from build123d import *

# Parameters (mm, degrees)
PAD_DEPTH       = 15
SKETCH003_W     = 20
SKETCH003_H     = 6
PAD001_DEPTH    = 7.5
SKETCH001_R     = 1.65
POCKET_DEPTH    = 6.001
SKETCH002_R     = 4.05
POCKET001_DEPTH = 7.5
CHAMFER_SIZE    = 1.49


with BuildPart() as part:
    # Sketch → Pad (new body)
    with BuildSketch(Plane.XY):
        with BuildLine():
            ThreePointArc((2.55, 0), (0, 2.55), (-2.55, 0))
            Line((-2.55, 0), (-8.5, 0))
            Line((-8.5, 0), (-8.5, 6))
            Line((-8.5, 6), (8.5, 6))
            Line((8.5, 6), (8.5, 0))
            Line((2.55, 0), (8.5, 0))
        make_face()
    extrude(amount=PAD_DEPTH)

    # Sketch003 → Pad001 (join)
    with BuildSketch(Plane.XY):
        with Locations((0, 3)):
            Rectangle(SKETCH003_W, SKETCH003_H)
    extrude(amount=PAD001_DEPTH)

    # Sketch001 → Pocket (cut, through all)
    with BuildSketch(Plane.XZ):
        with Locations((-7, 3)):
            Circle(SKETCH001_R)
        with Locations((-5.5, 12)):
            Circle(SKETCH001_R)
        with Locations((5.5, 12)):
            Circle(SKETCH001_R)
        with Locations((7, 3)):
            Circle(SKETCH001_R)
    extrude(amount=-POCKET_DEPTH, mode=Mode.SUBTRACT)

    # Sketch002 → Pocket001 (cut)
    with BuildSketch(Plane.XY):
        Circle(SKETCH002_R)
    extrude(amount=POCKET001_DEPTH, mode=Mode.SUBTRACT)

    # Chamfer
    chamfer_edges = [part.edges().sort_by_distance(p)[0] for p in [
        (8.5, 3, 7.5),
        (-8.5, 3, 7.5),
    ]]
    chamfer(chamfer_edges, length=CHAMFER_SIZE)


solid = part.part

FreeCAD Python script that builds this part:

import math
import FreeCAD as App
import Part
import Sketcher


def edges_at(feature, points):
    """Names of the edges that pass closest to the given points."""
    edges = feature.Shape.Edges
    near = lambda p: min(range(len(edges)), key=lambda i: edges[i].distToShape(Part.Vertex(*p))[0])
    return sorted({f"Edge{near(p) + 1}" for p in points})


def add_polygon(sketch, points):
    """Adds a closed chain of lines whose ends are joined by coincident constraints."""
    first, n = sketch.GeometryCount, len(points)
    for a, b in zip(points, points[1:] + points[:1]):
        sketch.addGeometry(Part.LineSegment(App.Vector(*a, 0), App.Vector(*b, 0)), False)
    for i in range(n):
        sketch.addConstraint(Sketcher.Constraint("Coincident", first + i, 2, first + (i + 1) % n, 1))

doc = App.newDocument("Part")
body = doc.addObject("PartDesign::Body", "Body")

# Sketch on XY plane
sketch1 = doc.addObject("Sketcher::SketchObject", "Sketch")
body.addObject(sketch1)
sketch1.AttachmentSupport = (doc.XY_Plane, [""])
sketch1.MapMode = "FlatFace"
sketch1.addGeometry(Part.ArcOfCircle(Part.Circle(App.Vector(0, 0, 0), App.Vector(0, 0, 1), 2.55), math.radians(0), math.radians(180)), False)
sketch1.addGeometry(Part.LineSegment(App.Vector(2.55, 0, 0), App.Vector(8.5, 0, 0)), False)
sketch1.addGeometry(Part.LineSegment(App.Vector(8.5, 0, 0), App.Vector(8.5, 6, 0)), False)
sketch1.addGeometry(Part.LineSegment(App.Vector(8.5, 6, 0), App.Vector(-8.5, 6, 0)), False)
sketch1.addGeometry(Part.LineSegment(App.Vector(-8.5, 6, 0), App.Vector(-8.5, 0, 0)), False)
sketch1.addGeometry(Part.LineSegment(App.Vector(-8.5, 0, 0), App.Vector(-2.55, 0, 0)), False)
sketch1.addConstraint(Sketcher.Constraint("Coincident", 0, 1, 1, 1))
sketch1.addConstraint(Sketcher.Constraint("Coincident", 1, 2, 2, 1))
sketch1.addConstraint(Sketcher.Constraint("Coincident", 2, 2, 3, 1))
sketch1.addConstraint(Sketcher.Constraint("Coincident", 3, 2, 4, 1))
sketch1.addConstraint(Sketcher.Constraint("Coincident", 4, 2, 5, 1))
sketch1.addConstraint(Sketcher.Constraint("Coincident", 5, 2, 0, 2))
sketch1.addConstraint(Sketcher.Constraint("Horizontal", 1))
sketch1.addConstraint(Sketcher.Constraint("Vertical", 2))
sketch1.addConstraint(Sketcher.Constraint("Horizontal", 3))
sketch1.addConstraint(Sketcher.Constraint("Vertical", 4))
sketch1.addConstraint(Sketcher.Constraint("Horizontal", 5))
sketch1.addConstraint(Sketcher.Constraint("Coincident", 0, 3, -1, 1))
sketch1.addConstraint(Sketcher.Constraint("Symmetric", 1, 2, 4, 2, -1, 1))
sketch1.addConstraint(Sketcher.Constraint("PointOnObject", 0, 1, -1))
sketch1.addConstraint(Sketcher.Constraint("DistanceX", 3, 2, 3, 1, 17.0))
sketch1.addConstraint(Sketcher.Constraint("DistanceY", 2, 1, 2, 2, 6.0))
sketch1.addConstraint(Sketcher.Constraint("Radius", 0, 2.55))
pad1 = doc.addObject("PartDesign::Pad", "Pad")
body.addObject(pad1)
pad1.Profile = sketch1
pad1.Length = 15

# Sketch on XY plane
sketch2 = doc.addObject("Sketcher::SketchObject", "Sketch001")
body.addObject(sketch2)
sketch2.AttachmentSupport = (doc.XY_Plane, [""])
sketch2.MapMode = "FlatFace"
add_polygon(sketch2, [(-10, 6), (-10, 0), (10, 0), (10, 6)])  # lines 0-3
sketch2.addConstraint(Sketcher.Constraint("Vertical", 0))
sketch2.addConstraint(Sketcher.Constraint("Horizontal", 1))
sketch2.addConstraint(Sketcher.Constraint("Vertical", 2))
sketch2.addConstraint(Sketcher.Constraint("Horizontal", 3))
sketch2.addConstraint(Sketcher.Constraint("Symmetric", 0, 2, 1, 2, -1, 1))
sketch2.addConstraint(Sketcher.Constraint("DistanceX", 1, 1, 1, 2, 20.0))
sketch2.addConstraint(Sketcher.Constraint("DistanceY", 0, 2, 0, 1, 6.0))
pad2 = doc.addObject("PartDesign::Pad", "Pad001")
body.addObject(pad2)
pad2.Profile = sketch2
pad2.Length = 7.5

# Sketch on XZ plane
sketch3 = doc.addObject("Sketcher::SketchObject", "Sketch002")
body.addObject(sketch3)
sketch3.AttachmentSupport = (doc.XZ_Plane, [""])
sketch3.MapMode = "FlatFace"
sketch3.addGeometry(Part.Circle(App.Vector(-7, 3, 0), App.Vector(0, 0, 1), 1.65), False)
sketch3.addGeometry(Part.Circle(App.Vector(-5.5, 12, 0), App.Vector(0, 0, 1), 1.65), False)
sketch3.addGeometry(Part.Circle(App.Vector(5.5, 12, 0), App.Vector(0, 0, 1), 1.65), False)
sketch3.addGeometry(Part.Circle(App.Vector(7, 3, 0), App.Vector(0, 0, 1), 1.65), False)
sketch3.addConstraint(Sketcher.Constraint("Equal", 0, 1))
sketch3.addConstraint(Sketcher.Constraint("Equal", 1, 2))
sketch3.addConstraint(Sketcher.Constraint("Equal", 2, 3))
sketch3.addConstraint(Sketcher.Constraint("Symmetric", 1, 3, 2, 3, -2))
sketch3.addConstraint(Sketcher.Constraint("Symmetric", 0, 3, 3, 3, -2))
sketch3.addConstraint(Sketcher.Constraint("Diameter", 0, 3.3))
sketch3.addConstraint(Sketcher.Constraint("DistanceX", 0, 3, -1, 1, 7.0))
sketch3.addConstraint(Sketcher.Constraint("DistanceY", -1, 1, 0, 3, 3.0))
sketch3.addConstraint(Sketcher.Constraint("DistanceY", -1, 1, 1, 3, 12.0))
sketch3.addConstraint(Sketcher.Constraint("DistanceX", 1, 3, 2, 3, 11.0))
pocket1 = doc.addObject("PartDesign::Pocket", "Pocket")
body.addObject(pocket1)
pocket1.Profile = sketch3
pocket1.Type = "ThroughAll"

# Sketch on XY plane
sketch4 = doc.addObject("Sketcher::SketchObject", "Sketch003")
body.addObject(sketch4)
sketch4.AttachmentSupport = (doc.XY_Plane, [""])
sketch4.MapMode = "FlatFace"
sketch4.addGeometry(Part.Circle(App.Vector(0, 0, 0), App.Vector(0, 0, 1), 4.05), False)
sketch4.addConstraint(Sketcher.Constraint("Coincident", 0, 3, -1, 1))
sketch4.addConstraint(Sketcher.Constraint("Diameter", 0, 8.1))
pocket2 = doc.addObject("PartDesign::Pocket", "Pocket001")
body.addObject(pocket2)
pocket2.Profile = sketch4
pocket2.Length = 7.5
pocket2.Reversed = True
doc.recompute()

chamfer = doc.addObject("PartDesign::Chamfer", "Chamfer")
body.addObject(chamfer)
chamfer.Base = (pocket2, edges_at(pocket2, [(8.5, 3, 7.5), (-8.5, 3, 7.5)]))
chamfer.Size = 1.49

doc.recompute()
